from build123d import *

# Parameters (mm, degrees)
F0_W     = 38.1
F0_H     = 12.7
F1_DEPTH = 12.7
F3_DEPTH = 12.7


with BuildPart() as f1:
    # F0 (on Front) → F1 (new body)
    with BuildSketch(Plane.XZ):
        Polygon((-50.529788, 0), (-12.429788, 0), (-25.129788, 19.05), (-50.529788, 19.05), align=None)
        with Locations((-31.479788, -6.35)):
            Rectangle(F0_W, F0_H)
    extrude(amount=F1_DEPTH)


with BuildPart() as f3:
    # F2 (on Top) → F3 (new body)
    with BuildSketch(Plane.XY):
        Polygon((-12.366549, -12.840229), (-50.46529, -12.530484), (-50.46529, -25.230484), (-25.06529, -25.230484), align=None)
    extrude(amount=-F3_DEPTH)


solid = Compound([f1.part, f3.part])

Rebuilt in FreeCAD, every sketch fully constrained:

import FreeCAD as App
import Part
import Sketcher
Q = App.Units.Quantity

doc = App.newDocument("Part")
body = doc.addObject("PartDesign::Body", "Body")

# Sketch on XZ plane
sketch1 = body.newObject("Sketcher::SketchObject", "Sketch")
sketch1.AttachmentSupport = (doc.getObject("XZ_Plane"), [""])
sketch1.MapMode = "FlatFace"
sketch1.addGeometry([
    Part.LineSegment(App.Vector(-12, 0, 0), App.Vector(-25, 19, 0)),  # 0
    Part.LineSegment(App.Vector(-25, 19, 0), App.Vector(-51, 19, 0)),  # 1
    Part.LineSegment(App.Vector(-51, 19, 0), App.Vector(-51, -13, 0)),  # 2
    Part.LineSegment(App.Vector(-51, -13, 0), App.Vector(-12, -13, 0)),  # 3
    Part.LineSegment(App.Vector(-12, -13, 0), App.Vector(-12, 0, 0)),  # 4
], False)
sketch1.addConstraint([
    Sketcher.Constraint("Coincident", 0, 2, 1, 1),
    Sketcher.Constraint("Coincident", 1, 2, 2, 1),
    Sketcher.Constraint("Coincident", 2, 2, 3, 1),
    Sketcher.Constraint("Coincident", 3, 2, 4, 1),
    Sketcher.Constraint("Coincident", 4, 2, 0, 1),
    Sketcher.Constraint("Horizontal", 1),
    Sketcher.Constraint("Vertical", 2),
    Sketcher.Constraint("Horizontal", 3),
    Sketcher.Constraint("Vertical", 4),
    Sketcher.Constraint("PointOnObject", 4, 2, -1),
    Sketcher.Constraint("DistanceX", 1, 2, 1, 1, Q("1 in")),
    Sketcher.Constraint("DistanceX", 3, 1, 3, 2, Q("1.5 in")),
    Sketcher.Constraint("DistanceY", 4, 1, 4, 2, Q("0.5 in")),
    Sketcher.Constraint("DistanceY", 2, 2, 2, 1, Q("1.25 in")),
    Sketcher.Constraint("DistanceX", 0, 2, -1, 1, 25.129788),
])
pad1 = body.newObject("PartDesign::Pad", "Pad")
pad1.Profile = sketch1
pad1.Length = Q("0.5 in")
body2 = doc.addObject("PartDesign::Body", "Body001")

# Sketch on XY plane
sketch2 = body2.newObject("Sketcher::SketchObject", "Sketch001")
sketch2.AttachmentSupport = (doc.getObject("XY_Plane001"), [""])
sketch2.MapMode = "FlatFace"
sketch2.addGeometry([
    Part.LineSegment(App.Vector(-12, -13, 0), App.Vector(-50, -13, 0)),
    Part.LineSegment(App.Vector(-50, -13, 0), App.Vector(-50, -25, 0)),
    Part.LineSegment(App.Vector(-50, -25, 0), App.Vector(-25, -25, 0)),
    Part.LineSegment(App.Vector(-25, -25, 0), App.Vector(-12, -13, 0)),
], False)
sketch2.addConstraint([
    Sketcher.Constraint("Coincident", 0, 2, 1, 1),
    Sketcher.Constraint("Coincident", 1, 2, 2, 1),
    Sketcher.Constraint("Coincident", 2, 2, 3, 1),
    Sketcher.Constraint("Coincident", 3, 2, 0, 1),
    Sketcher.Constraint("Vertical", 1),
    Sketcher.Constraint("Horizontal", 2),
    Sketcher.Constraint("DistanceX", 2, 1, 2, 2, Q("1 in")),
    Sketcher.Constraint("DistanceY", 1, 2, 1, 1, Q("0.5 in")),
    Sketcher.Constraint("Distance", 0, Q("1.5 in")),
    Sketcher.Constraint("Distance", 3, 17.74194),
    Sketcher.Constraint("DistanceX", 0, 2, -1, 1, 50.46529),
    Sketcher.Constraint("DistanceY", 3, 2, -1, 1, 12.840229),
])
pad2 = body2.newObject("PartDesign::Pad", "Pad001")
pad2.Profile = sketch2
pad2.Length = Q("0.5 in")
pad2.Reversed = True

doc.recompute()
